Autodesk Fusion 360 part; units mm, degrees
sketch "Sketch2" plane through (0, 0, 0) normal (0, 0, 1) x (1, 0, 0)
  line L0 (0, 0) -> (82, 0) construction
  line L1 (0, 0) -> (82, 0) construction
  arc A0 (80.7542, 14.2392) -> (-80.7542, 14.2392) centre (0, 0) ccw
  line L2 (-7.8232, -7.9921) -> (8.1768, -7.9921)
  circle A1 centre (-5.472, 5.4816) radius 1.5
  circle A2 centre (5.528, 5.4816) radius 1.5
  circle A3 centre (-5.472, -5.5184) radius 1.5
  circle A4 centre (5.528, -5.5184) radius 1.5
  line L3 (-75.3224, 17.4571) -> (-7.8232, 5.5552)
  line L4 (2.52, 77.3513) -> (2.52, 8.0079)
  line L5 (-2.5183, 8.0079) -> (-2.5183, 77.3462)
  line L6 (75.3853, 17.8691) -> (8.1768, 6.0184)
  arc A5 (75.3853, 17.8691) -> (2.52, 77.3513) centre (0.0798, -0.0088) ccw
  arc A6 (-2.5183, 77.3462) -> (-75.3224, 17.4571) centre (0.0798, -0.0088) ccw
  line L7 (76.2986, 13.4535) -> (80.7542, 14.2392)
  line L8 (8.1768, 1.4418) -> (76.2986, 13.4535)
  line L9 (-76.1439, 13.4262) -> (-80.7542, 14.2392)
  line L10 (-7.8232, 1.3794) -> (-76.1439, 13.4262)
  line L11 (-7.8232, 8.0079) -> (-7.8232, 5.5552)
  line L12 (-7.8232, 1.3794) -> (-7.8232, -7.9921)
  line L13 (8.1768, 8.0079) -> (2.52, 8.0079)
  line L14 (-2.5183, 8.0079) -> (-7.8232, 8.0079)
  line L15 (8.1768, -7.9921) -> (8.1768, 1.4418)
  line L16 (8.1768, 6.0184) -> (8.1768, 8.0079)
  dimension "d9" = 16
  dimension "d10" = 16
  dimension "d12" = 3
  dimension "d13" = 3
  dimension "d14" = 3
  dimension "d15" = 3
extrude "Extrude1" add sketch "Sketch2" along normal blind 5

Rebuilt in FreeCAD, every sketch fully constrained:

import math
import FreeCAD as App
import Part
import Sketcher

V = App.Vector
Q = App.Units.Quantity

doc = App.newDocument("Part")
body = doc.addObject("PartDesign::Body", "Body")

sketch1 = body.newObject("Sketcher::SketchObject", "Sketch")
sketch1.AttachmentSupport = (doc.getObject("XY_Plane"), [""])
sketch1.MapMode = "FlatFace"
sketch1.addGeometry([
    Part.LineSegment(V(76.2986, 13.4535, 0), V(80.7542, 14.2392, 0)),
    Part.ArcOfCircle(Part.Circle(V(0, 0, 0), V(0, 0, 1), 81.999973), math.radians(10.000038), math.radians(169.999962)),
    Part.LineSegment(V(-80.7542, 14.2392, 0), V(-76.1439, 13.4262, 0)),
    Part.LineSegment(V(-76.1439, 13.4262, 0), V(-7.8232, 1.3794, 0)),
    Part.LineSegment(V(-7.8232, 1.3794, 0), V(-7.8232, -7.9921, 0)),
    Part.LineSegment(V(-7.8232, -7.9921, 0), V(8.1768, -7.9921, 0)),
    Part.LineSegment(V(8.1768, -7.9921, 0), V(8.1768, 1.4418, 0)),
    Part.LineSegment(V(8.1768, 1.4418, 0), V(76.2986, 13.4535, 0)),
    Part.Circle(V(-5.472, -5.5184, 0), V(0, 0, 1), 1.5),
    Part.Circle(V(-5.472, 5.4816, 0), V(0, 0, 1), 1.5),
    Part.Circle(V(5.528, -5.5184, 0), V(0, 0, 1), 1.5),
    Part.Circle(V(5.528, 5.4816, 0), V(0, 0, 1), 1.5),
    Part.LineSegment(V(-7.8232, 5.5552, 0), V(-75.3224, 17.4571, 0)),
    Part.ArcOfCircle(Part.Circle(V(0.0798, -0.0088, 0), V(0, 0, 1), 77.398619), math.radians(91.923654), math.radians(166.958215)),
    Part.LineSegment(V(-2.5183, 77.3462, 0), V(-2.5183, 8.0079, 0)),
    Part.LineSegment(V(-2.5183, 8.0079, 0), V(-7.8232, 8.0079, 0)),
    Part.LineSegment(V(-7.8232, 8.0079, 0), V(-7.8232, 5.5552, 0)),
    Part.LineSegment(V(2.52, 8.0079, 0), V(2.52, 77.3513, 0)),
    Part.ArcOfCircle(Part.Circle(V(0.0798, -0.0088, 0), V(0, 0, 1), 77.398619), math.radians(13.355064), math.radians(88.193296)),
    Part.LineSegment(V(75.3853, 17.8691, 0), V(8.1768, 6.0184, 0)),
    Part.LineSegment(V(8.1768, 6.0184, 0), V(8.1768, 8.0079, 0)),
    Part.LineSegment(V(8.1768, 8.0079, 0), V(2.52, 8.0079, 0)),
], False)
sketch1.addConstraint([
    Sketcher.Constraint("Coincident", 0, 2, 1, 1),
    Sketcher.Constraint("Coincident", 1, 2, 2, 1),
    Sketcher.Constraint("Coincident", 2, 2, 3, 1),
    Sketcher.Constraint("Coincident", 3, 2, 4, 1),
    Sketcher.Constraint("Coincident", 4, 2, 5, 1),
    Sketcher.Constraint("Coincident", 5, 2, 6, 1),
    Sketcher.Constraint("Coincident", 6, 2, 7, 1),
    Sketcher.Constraint("Coincident", 7, 2, 0, 1),
    Sketcher.Constraint("Coincident", 12, 2, 13, 2),
    Sketcher.Constraint("Coincident", 13, 1, 14, 1),
    Sketcher.Constraint("Coincident", 14, 2, 15, 1),
    Sketcher.Constraint("Coincident", 15, 2, 16, 1),
    Sketcher.Constraint("Coincident", 16, 2, 12, 1),
    Sketcher.Constraint("Coincident", 17, 2, 18, 2),
    Sketcher.Constraint("Coincident", 18, 1, 19, 1),
    Sketcher.Constraint("Coincident", 19, 2, 20, 1),
    Sketcher.Constraint("Coincident", 20, 2, 21, 1),
    Sketcher.Constraint("Coincident", 21, 2, 17, 1),
    Sketcher.Constraint("Vertical", 4),
    Sketcher.Constraint("Horizontal", 5),
    Sketcher.Constraint("Vertical", 6),
    Sketcher.Constraint("Vertical", 14),
    Sketcher.Constraint("Horizontal", 15),
    Sketcher.Constraint("Vertical", 16),
    Sketcher.Constraint("Vertical", 17),
    Sketcher.Constraint("Vertical", 20),
    Sketcher.Constraint("Horizontal", 21),
    Sketcher.Constraint("Coincident", 1, 3, -1, 1),
    Sketcher.Constraint("Coincident", 18, 3, 13, 3),
    Sketcher.Constraint("Equal", 8, 9),
    Sketcher.Constraint("Equal", 9, 10),
    Sketcher.Constraint("Equal", 10, 11),
    Sketcher.Constraint("Equal", 13, 18),
    Sketcher.Constraint("Parallel", 2, 3),
    Sketcher.Constraint("Parallel", 0, 7),
    Sketcher.Constraint("Parallel", 3, 12),
    Sketcher.Constraint("Parallel", 7, 19),
    Sketcher.Constraint("Horizontal", 8, 3, 10, 3),
    Sketcher.Constraint("Horizontal", 9, 3, 11, 3),
    Sketcher.Constraint("Horizontal", 0, 2, 1, 2),
    Sketcher.Constraint("Horizontal", 15, 2, 20, 2),
    Sketcher.Constraint("Vertical", 8, 3, 9, 3),
    Sketcher.Constraint("Vertical", 10, 3, 11, 3),
    Sketcher.Constraint("Vertical", 4, 2, 15, 2),
    Sketcher.Constraint("Vertical", 6, 2, 19, 2),
    Sketcher.Constraint("Diameter", 8, Q("3 mm")),
    Sketcher.Constraint("DistanceX", 5, 1, 5, 2, Q("16 mm")),
    Sketcher.Constraint("Radius", 1, Q("82 mm")),
    Sketcher.Constraint("Angle", 0, Q("10.0007 deg")),
    Sketcher.Constraint("Angle", 2, Q("-10.001 deg")),
    Sketcher.Constraint("DistanceY", 8, 3, 9, 3, Q("11 mm")),
    Sketcher.Constraint("DistanceX", 8, 3, 10, 3, Q("11 mm")),
    Sketcher.Constraint("Radius", 13, Q("77.3986 mm")),
    Sketcher.Constraint("DistanceX", 15, 2, 15, 1, Q("5.305 mm")),
    Sketcher.Constraint("DistanceY", 6, 1, 6, 2, Q("9.434 mm")),
    Sketcher.Constraint("DistanceX", -1, 1, 17, 2, Q("2.52 mm")),
    Sketcher.Constraint("DistanceY", 0, 2, 18, 1, Q("3.63 mm")),
    Sketcher.Constraint("DistanceX", 21, 2, 21, 1, Q("5.6568 mm")),
    Sketcher.Constraint("DistanceY", 14, 2, 14, 1, Q("69.3383 mm")),
    Sketcher.Constraint("DistanceY", 16, 2, 16, 1, Q("2.4527 mm")),
    Sketcher.Constraint("DistanceY", 17, 1, 17, 2, Q("69.3434 mm")),
    Sketcher.Constraint("DistanceY", 20, 1, 20, 2, Q("1.9895 mm")),
    Sketcher.Constraint("DistanceX", 8, 3, -1, 1, Q("5.472 mm")),
    Sketcher.Constraint("DistanceX", 2, 2, -1, 1, Q("76.144 mm")),
    Sketcher.Constraint("DistanceY", 4, 2, -1, 1, Q("7.992 mm")),
    Sketcher.Constraint("DistanceY", 11, 3, 7, 2, Q("7.972 mm")),
    Sketcher.Constraint("Distance", 0, Q("4.5243 mm")),
])
pad1 = body.newObject("PartDesign::Pad", "Pad")
pad1.Profile = sketch1
pad1.Length = 5

doc.recompute()
